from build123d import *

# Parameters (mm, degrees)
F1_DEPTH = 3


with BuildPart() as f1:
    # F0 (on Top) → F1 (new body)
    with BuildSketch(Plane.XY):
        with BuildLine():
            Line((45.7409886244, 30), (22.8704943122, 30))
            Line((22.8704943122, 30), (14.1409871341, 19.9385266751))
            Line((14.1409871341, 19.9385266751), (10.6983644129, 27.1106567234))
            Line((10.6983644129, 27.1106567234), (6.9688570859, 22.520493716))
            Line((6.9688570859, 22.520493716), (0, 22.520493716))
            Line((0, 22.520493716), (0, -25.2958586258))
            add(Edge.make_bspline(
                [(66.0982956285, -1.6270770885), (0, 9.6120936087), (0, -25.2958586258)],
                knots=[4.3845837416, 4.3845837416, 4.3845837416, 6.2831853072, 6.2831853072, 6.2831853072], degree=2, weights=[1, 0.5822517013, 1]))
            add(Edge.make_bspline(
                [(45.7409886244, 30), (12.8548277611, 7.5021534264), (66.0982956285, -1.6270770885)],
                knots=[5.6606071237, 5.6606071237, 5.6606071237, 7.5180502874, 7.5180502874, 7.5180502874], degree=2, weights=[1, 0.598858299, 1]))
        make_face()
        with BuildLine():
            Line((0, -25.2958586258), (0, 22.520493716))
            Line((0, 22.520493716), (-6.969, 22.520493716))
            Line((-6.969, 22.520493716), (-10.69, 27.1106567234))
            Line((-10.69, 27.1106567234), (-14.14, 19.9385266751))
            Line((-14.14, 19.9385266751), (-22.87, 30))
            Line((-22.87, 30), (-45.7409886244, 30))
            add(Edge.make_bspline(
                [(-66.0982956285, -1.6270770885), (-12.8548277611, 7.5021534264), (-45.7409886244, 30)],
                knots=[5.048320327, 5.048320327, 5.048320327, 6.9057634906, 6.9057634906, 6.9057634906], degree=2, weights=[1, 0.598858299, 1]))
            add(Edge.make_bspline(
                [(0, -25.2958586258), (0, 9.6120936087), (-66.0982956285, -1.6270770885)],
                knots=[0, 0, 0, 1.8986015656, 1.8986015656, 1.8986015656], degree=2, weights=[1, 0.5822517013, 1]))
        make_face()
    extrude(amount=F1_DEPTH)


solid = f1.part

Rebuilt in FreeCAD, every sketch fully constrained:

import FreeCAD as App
import Part
import Sketcher
from FreeCAD import Vector

doc = App.newDocument("Part")
body = doc.addObject("PartDesign::Body", "Body")

# Sketch on XY plane
sketch1 = body.newObject("Sketcher::SketchObject", "Sketch")
sketch1.AttachmentSupport = (doc.getObject("XY_Plane"), [""])
sketch1.MapMode = "FlatFace"
sketch1.addGeometry(Part.LineSegment(Vector(45.740989, 30, 0), Vector(22.870494, 30, 0)), False)
sketch1.addGeometry(Part.LineSegment(Vector(22.870494, 30, 0), Vector(14.140987, 19.938527, 0)), False)
sketch1.addGeometry(Part.LineSegment(Vector(14.140987, 19.938527, 0), Vector(10.698364, 27.110657, 0)), False)
sketch1.addGeometry(Part.LineSegment(Vector(10.698364, 27.110657, 0), Vector(6.968857, 22.520494, 0)), False)
sketch1.addGeometry(Part.LineSegment(Vector(6.968857, 22.520494, 0), Vector(-6.969, 22.520494, 0)), False)
sketch1.addGeometry(Part.LineSegment(Vector(-6.969, 22.520494, 0), Vector(-10.69, 27.110657, 0)), False)
sketch1.addGeometry(Part.LineSegment(Vector(-10.69, 27.110657, 0), Vector(-14.14, 19.938527, 0)), False)
sketch1.addGeometry(Part.LineSegment(Vector(-14.14, 19.938527, 0), Vector(-22.87, 30, 0)), False)
sketch1.addGeometry(Part.LineSegment(Vector(-22.87, 30, 0), Vector(-45.740989, 30, 0)), False)
sketch1.addGeometry(Part.BSplineCurve([Vector(-66.098296, -1.627077, 0), Vector(-12.854828, 7.502153, 0), Vector(-45.740989, 30, 0)], [3, 3], [5.048320327, 6.905763491], False, 2, [1, 0.598858299, 1], False), False)
sketch1.addGeometry(Part.BSplineCurve([Vector(0, -25.295859, 0), Vector(0, 9.612094, 0), Vector(-66.098296, -1.627077, 0)], [3, 3], [0, 1.898601566], False, 2, [1, 0.582251701, 1], False), False)
sketch1.addGeometry(Part.BSplineCurve([Vector(66.098296, -1.627077, 0), Vector(0, 9.612094, 0), Vector(0, -25.295859, 0)], [3, 3], [4.384583742, 6.283185307], False, 2, [1, 0.582251701, 1], False), False)
sketch1.addGeometry(Part.BSplineCurve([Vector(45.740989, 30, 0), Vector(12.854828, 7.502153, 0), Vector(66.098296, -1.627077, 0)], [3, 3], [5.660607124, 7.518050287], False, 2, [1, 0.598858299, 1], False), False)
sketch1.addConstraint(Sketcher.Constraint("Block", 9))
sketch1.addConstraint(Sketcher.Constraint("Block", 10))
sketch1.addConstraint(Sketcher.Constraint("Block", 11))
sketch1.addConstraint(Sketcher.Constraint("Block", 12))
sketch1.addConstraint(Sketcher.Constraint("Coincident", 0, 2, 1, 1))
sketch1.addConstraint(Sketcher.Constraint("Coincident", 1, 2, 2, 1))
sketch1.addConstraint(Sketcher.Constraint("Coincident", 2, 2, 3, 1))
sketch1.addConstraint(Sketcher.Constraint("Coincident", 3, 2, 4, 1))
sketch1.addConstraint(Sketcher.Constraint("Coincident", 4, 2, 5, 1))
sketch1.addConstraint(Sketcher.Constraint("Coincident", 5, 2, 6, 1))
sketch1.addConstraint(Sketcher.Constraint("Coincident", 6, 2, 7, 1))
sketch1.addConstraint(Sketcher.Constraint("Coincident", 7, 2, 8, 1))
sketch1.addConstraint(Sketcher.Constraint("Coincident", 8, 2, 9, 2))
sketch1.addConstraint(Sketcher.Constraint("Coincident", 12, 1, 0, 1))
sketch1.addConstraint(Sketcher.Constraint("Horizontal", 0))
sketch1.addConstraint(Sketcher.Constraint("Horizontal", 4))
sketch1.addConstraint(Sketcher.Constraint("Horizontal", 8))
sketch1.addConstraint(Sketcher.Constraint("DistanceX", 5, 2, -1, 1, 10.69))
sketch1.addConstraint(Sketcher.Constraint("DistanceX", 6, 2, -1, 1, 14.14))
sketch1.addConstraint(Sketcher.Constraint("DistanceX", 7, 2, -1, 1, 22.87))
sketch1.addConstraint(Sketcher.Constraint("DistanceX", 4, 2, -1, 1, 6.969))
sketch1.addConstraint(Sketcher.Constraint("Distance", 1, 13.320568))
sketch1.addConstraint(Sketcher.Constraint("Distance", 2, 7.95557))
sketch1.addConstraint(Sketcher.Constraint("Distance", 3, 5.91429))
sketch1.addConstraint(Sketcher.Constraint("Distance", 5, 5.908929))
sketch1.addConstraint(Sketcher.Constraint("Distance", 7, 13.320891))
sketch1.addConstraint(Sketcher.Constraint("DistanceX", 0, 2, 0, 1, 22.870494))
sketch1.addConstraint(Sketcher.Constraint("DistanceX", 4, 2, 4, 1, 13.937857))
sketch1.addConstraint(Sketcher.Constraint("DistanceY", 1, 2, 2, 2, 7.17213))
sketch1.addConstraint(Sketcher.Constraint("DistanceX", 2, 2, 0, 2, 12.17213))
pad1 = body.newObject("PartDesign::Pad", "Pad")
pad1.Profile = sketch1
pad1.Length = 3

doc.recompute()
